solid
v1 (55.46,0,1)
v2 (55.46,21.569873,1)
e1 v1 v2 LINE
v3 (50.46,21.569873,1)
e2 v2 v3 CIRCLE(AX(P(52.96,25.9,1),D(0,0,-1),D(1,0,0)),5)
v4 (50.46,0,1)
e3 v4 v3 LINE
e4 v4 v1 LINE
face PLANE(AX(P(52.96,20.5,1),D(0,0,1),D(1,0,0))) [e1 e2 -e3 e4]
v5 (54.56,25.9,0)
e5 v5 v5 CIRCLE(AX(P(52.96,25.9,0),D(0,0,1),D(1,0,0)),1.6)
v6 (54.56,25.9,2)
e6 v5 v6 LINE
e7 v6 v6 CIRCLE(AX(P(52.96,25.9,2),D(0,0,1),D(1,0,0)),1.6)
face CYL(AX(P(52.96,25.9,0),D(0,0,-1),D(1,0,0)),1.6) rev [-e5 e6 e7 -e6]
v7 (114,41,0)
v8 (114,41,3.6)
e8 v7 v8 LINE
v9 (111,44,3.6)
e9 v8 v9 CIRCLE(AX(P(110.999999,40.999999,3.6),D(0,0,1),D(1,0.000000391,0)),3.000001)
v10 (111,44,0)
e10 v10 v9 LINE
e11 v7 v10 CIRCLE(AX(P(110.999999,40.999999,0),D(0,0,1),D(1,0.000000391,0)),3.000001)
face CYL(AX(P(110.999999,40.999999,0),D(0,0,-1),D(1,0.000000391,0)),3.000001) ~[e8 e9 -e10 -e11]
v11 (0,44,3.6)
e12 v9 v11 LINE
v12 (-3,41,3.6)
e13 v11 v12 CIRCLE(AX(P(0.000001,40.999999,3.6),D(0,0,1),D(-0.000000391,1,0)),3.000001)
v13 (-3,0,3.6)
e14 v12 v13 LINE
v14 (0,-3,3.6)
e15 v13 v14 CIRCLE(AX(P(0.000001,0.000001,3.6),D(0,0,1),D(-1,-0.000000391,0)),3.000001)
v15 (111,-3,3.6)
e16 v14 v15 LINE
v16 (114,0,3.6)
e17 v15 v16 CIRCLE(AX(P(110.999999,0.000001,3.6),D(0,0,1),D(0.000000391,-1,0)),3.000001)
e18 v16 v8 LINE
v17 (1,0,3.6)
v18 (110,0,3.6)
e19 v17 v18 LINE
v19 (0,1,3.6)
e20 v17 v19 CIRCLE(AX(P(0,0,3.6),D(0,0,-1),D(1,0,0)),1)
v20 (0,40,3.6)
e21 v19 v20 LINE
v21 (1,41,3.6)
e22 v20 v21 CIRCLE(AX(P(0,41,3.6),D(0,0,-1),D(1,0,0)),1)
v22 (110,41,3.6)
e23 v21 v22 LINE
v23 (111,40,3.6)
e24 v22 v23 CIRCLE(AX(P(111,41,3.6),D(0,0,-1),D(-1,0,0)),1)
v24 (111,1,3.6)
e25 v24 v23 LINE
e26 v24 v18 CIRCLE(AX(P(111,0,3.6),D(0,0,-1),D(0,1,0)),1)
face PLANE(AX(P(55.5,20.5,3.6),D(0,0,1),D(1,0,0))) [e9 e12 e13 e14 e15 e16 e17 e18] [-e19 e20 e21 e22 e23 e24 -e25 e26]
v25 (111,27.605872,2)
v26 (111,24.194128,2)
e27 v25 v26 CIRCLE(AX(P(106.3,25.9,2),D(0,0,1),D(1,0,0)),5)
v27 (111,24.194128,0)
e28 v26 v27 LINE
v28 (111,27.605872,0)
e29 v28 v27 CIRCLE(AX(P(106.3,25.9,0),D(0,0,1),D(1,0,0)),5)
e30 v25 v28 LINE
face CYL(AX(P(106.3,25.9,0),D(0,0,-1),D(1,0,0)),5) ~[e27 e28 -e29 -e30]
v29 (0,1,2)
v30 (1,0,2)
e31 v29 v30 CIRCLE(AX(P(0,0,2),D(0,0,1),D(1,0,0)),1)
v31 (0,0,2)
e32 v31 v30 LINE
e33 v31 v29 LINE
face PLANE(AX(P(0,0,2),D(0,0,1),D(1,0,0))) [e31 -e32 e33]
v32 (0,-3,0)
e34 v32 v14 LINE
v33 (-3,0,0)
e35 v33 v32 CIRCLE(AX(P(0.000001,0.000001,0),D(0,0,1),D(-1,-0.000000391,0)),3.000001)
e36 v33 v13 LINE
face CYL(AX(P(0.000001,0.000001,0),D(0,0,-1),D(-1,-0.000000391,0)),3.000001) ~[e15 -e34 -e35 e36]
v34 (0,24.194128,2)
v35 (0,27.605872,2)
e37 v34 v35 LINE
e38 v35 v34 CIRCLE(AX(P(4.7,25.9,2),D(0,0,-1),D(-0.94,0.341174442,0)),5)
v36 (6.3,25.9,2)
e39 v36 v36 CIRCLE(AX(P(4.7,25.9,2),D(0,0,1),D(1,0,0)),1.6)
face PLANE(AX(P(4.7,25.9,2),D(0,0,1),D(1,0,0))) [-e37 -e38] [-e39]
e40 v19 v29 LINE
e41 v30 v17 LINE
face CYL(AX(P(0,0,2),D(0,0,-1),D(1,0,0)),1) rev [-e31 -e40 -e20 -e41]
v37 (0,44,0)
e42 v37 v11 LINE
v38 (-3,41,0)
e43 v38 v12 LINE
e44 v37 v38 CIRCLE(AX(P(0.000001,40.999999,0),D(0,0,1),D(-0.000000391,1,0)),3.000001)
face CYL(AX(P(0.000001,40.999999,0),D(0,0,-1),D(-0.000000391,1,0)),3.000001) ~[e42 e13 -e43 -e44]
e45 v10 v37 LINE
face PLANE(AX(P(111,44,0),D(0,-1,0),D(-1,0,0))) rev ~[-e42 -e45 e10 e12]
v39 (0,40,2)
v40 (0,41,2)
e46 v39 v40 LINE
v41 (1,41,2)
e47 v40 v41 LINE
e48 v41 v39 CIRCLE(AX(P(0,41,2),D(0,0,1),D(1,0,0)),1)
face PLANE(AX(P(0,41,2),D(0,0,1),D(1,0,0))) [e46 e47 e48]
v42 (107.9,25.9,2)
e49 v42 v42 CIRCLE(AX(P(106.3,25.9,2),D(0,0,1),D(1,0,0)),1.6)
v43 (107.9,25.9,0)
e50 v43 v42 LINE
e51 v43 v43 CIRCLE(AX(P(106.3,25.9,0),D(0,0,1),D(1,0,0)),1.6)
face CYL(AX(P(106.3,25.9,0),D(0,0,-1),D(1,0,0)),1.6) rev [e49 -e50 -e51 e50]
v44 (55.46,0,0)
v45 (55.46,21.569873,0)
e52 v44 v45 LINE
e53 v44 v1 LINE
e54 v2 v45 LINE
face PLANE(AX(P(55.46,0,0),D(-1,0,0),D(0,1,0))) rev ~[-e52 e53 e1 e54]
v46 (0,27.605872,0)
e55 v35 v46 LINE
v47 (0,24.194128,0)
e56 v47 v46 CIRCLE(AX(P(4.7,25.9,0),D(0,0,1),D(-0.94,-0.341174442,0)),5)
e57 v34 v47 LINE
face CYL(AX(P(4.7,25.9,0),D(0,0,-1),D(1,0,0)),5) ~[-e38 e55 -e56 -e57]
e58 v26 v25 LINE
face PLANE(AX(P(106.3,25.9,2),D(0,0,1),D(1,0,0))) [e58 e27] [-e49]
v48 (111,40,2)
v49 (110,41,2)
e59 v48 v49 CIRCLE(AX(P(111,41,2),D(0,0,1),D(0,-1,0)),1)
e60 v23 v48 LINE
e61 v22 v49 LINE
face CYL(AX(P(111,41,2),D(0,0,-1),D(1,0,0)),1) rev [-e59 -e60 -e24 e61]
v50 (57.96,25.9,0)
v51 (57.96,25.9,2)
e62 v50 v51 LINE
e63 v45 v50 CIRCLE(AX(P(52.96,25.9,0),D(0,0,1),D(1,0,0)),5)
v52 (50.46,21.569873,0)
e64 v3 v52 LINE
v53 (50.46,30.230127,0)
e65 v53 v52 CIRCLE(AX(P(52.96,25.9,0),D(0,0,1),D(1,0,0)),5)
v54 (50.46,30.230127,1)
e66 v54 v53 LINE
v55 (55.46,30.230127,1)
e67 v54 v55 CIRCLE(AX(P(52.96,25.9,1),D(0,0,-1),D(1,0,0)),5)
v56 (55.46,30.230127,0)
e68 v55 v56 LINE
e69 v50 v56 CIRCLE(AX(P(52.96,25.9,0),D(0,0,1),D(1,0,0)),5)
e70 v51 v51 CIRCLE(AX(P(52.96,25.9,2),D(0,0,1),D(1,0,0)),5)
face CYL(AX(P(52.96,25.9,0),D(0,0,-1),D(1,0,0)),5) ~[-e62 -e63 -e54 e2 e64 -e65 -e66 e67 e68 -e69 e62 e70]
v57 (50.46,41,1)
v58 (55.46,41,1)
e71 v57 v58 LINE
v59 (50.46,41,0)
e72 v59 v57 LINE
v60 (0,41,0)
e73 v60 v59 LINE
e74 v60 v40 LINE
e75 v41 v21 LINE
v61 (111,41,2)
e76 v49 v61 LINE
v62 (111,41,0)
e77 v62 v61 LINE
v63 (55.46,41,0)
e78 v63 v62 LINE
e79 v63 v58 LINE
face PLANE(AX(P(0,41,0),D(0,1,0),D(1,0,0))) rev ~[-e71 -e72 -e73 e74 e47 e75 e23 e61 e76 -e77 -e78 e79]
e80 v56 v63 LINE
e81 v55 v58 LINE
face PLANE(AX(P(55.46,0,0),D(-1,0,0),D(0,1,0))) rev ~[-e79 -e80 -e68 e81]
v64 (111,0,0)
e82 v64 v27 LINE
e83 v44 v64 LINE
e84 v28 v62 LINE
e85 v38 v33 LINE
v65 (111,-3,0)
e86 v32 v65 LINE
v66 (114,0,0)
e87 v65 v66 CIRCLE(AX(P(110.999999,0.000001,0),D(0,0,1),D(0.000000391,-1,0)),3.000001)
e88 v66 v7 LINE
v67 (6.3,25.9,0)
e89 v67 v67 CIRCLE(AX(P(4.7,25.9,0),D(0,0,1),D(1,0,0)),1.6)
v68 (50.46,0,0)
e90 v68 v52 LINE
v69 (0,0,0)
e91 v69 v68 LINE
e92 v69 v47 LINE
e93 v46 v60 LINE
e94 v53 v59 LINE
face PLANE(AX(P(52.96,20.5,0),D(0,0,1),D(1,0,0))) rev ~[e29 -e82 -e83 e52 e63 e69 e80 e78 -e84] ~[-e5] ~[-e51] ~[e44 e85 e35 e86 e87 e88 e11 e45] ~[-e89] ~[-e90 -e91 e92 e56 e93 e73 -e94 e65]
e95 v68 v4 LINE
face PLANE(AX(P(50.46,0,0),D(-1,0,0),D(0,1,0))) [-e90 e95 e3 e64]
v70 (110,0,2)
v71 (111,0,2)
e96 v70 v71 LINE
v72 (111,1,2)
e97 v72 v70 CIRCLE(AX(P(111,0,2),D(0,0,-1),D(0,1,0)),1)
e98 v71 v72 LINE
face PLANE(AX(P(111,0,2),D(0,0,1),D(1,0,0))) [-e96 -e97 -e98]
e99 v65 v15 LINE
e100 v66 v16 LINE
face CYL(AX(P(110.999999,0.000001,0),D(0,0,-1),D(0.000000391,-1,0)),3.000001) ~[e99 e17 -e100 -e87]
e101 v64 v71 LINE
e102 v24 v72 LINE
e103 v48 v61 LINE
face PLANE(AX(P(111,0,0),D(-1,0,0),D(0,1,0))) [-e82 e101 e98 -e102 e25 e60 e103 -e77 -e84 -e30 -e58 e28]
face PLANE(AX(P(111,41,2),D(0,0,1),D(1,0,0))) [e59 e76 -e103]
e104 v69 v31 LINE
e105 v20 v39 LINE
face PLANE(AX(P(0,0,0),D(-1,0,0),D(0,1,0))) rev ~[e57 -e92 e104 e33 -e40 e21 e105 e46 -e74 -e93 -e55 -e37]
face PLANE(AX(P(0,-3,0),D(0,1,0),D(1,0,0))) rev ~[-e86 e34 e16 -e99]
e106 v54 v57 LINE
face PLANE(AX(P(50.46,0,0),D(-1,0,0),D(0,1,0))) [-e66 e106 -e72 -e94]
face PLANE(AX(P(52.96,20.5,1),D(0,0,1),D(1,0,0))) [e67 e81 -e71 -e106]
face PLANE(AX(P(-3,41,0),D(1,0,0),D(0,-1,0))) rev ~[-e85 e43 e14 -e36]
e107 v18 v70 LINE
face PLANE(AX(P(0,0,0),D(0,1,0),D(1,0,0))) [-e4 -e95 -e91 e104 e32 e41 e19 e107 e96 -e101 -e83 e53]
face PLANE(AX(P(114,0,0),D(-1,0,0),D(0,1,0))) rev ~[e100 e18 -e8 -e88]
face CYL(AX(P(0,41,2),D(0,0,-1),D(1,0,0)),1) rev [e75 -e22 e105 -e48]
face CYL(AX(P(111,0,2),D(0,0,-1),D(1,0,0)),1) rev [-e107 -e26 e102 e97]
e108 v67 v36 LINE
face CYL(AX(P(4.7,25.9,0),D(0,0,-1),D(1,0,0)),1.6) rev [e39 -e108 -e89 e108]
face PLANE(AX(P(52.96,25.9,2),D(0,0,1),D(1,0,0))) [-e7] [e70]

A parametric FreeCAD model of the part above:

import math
import FreeCAD as App
import Part
import Sketcher
from FreeCAD import Vector

doc = App.newDocument("Part")
body = doc.addObject("PartDesign::Body", "Body")
body.AllowCompound = True

# Sketch on XY plane
sketch1 = body.newObject("Sketcher::SketchObject", "Sketch")
sketch1.AttachmentSupport = (doc.getObject("XY_Plane"), [""])
sketch1.MapMode = "FlatFace"
sketch1.addGeometry([
    Part.LineSegment(Vector(0, -3, 0), Vector(111, -3, 0)),  # 0
    Part.ArcOfCircle(Part.Circle(Vector(111, 0, 0), Vector(0, 0, 1), 3), math.radians(-90), math.radians(0)),  # 1
    Part.LineSegment(Vector(114, 0, 0), Vector(114, 41, 0)),  # 2
    Part.ArcOfCircle(Part.Circle(Vector(111, 41, 0), Vector(0, 0, 1), 3), math.radians(0), math.radians(90)),  # 3
    Part.LineSegment(Vector(111, 44, 0), Vector(0, 44, 0)),  # 4
    Part.ArcOfCircle(Part.Circle(Vector(0, 41, 0), Vector(0, 0, 1), 3), math.radians(90), math.radians(180)),  # 5
    Part.LineSegment(Vector(-3, 41, 0), Vector(-3, 0, 0)),  # 6
    Part.ArcOfCircle(Part.Circle(Vector(0, 0, 0), Vector(0, 0, 1), 3), math.radians(-180), math.radians(-90)),  # 7
    Part.LineSegment(Vector(111, 0, 0), Vector(0, 0, 0)),  # 8
    Part.LineSegment(Vector(0, 0, 0), Vector(0, 41, 0)),  # 9
    Part.LineSegment(Vector(0, 41, 0), Vector(111, 41, 0)),  # 10
    Part.LineSegment(Vector(111, 41, 0), Vector(111, 0, 0)),  # 11
], False)
sketch1.addConstraint([
    Sketcher.Constraint("Tangent", 0, 2, 1, 1),
    Sketcher.Constraint("Tangent", 1, 2, 2, 1),
    Sketcher.Constraint("Tangent", 2, 2, 3, 1),
    Sketcher.Constraint("Tangent", 3, 2, 4, 1),
    Sketcher.Constraint("Tangent", 4, 2, 5, 1),
    Sketcher.Constraint("Tangent", 5, 2, 6, 1),
    Sketcher.Constraint("Tangent", 6, 2, 7, 1),
    Sketcher.Constraint("Tangent", 7, 2, 0, 1),
    Sketcher.Constraint("Coincident", 8, 2, 9, 1),
    Sketcher.Constraint("Coincident", 9, 2, 10, 1),
    Sketcher.Constraint("Coincident", 10, 2, 11, 1),
    Sketcher.Constraint("Coincident", 11, 2, 8, 1),
    Sketcher.Constraint("Horizontal", 0),
    Sketcher.Constraint("Vertical", 2),
    Sketcher.Constraint("Horizontal", 4),
    Sketcher.Constraint("Vertical", 6),
    Sketcher.Constraint("Horizontal", 8),
    Sketcher.Constraint("Vertical", 9),
    Sketcher.Constraint("Horizontal", 10),
    Sketcher.Constraint("Vertical", 11),
    Sketcher.Constraint("Coincident", 7, 3, -1, 1),
    Sketcher.Constraint("Coincident", 8, 2, -1, 1),
    Sketcher.Constraint("Coincident", 9, 2, 5, 3),
    Sketcher.Constraint("Coincident", 10, 2, 3, 3),
    Sketcher.Constraint("Equal", 1, 3),
    Sketcher.Constraint("Radius", 1, 3.000001),
    Sketcher.Constraint("DistanceX", 0, 1, 0, 2, 111.0),
    Sketcher.Constraint("DistanceY", 2, 1, 2, 2, 41.0),
])
pad1 = body.newObject("PartDesign::Pad", "Pad")
pad1.Profile = sketch1
pad1.Length = 3.6

# Sketch on XY plane
sketch2 = body.newObject("Sketcher::SketchObject", "Sketch001")
sketch2.AttachmentSupport = (doc.getObject("XY_Plane"), [""])
sketch2.MapMode = "FlatFace"
sketch2.addGeometry([
    Part.Circle(Vector(4.7, 25.9, 0), Vector(0, 0, 1), 5),  # 0
    Part.Circle(Vector(4.7, 25.9, 0), Vector(0, 0, 1), 1.6),  # 1
    Part.Circle(Vector(106.3, 25.9, 0), Vector(0, 0, 1), 5),  # 2
    Part.Circle(Vector(106.3, 25.9, 0), Vector(0, 0, 1), 1.6),  # 3
    Part.Circle(Vector(53, 25.9, 0), Vector(0, 0, 1), 5),  # 4
    Part.Circle(Vector(53, 25.9, 0), Vector(0, 0, 1), 1.6),  # 5
], False)
sketch2.addConstraint([
    Sketcher.Constraint("Coincident", 1, 3, 0, 3),
    Sketcher.Constraint("Coincident", 3, 3, 2, 3),
    Sketcher.Constraint("Coincident", 5, 3, 4, 3),
    Sketcher.Constraint("Equal", 0, 2),
    Sketcher.Constraint("Equal", 1, 3),
    Sketcher.Constraint("Equal", 2, 4),
    Sketcher.Constraint("Equal", 3, 5),
    Sketcher.Constraint("Horizontal", 1, 3, 2, 3),
    Sketcher.Constraint("Horizontal", 3, 3, 4, 3),
    Sketcher.Constraint("Diameter", 0, 10.0),
    Sketcher.Constraint("Diameter", 1, 3.2),
    Sketcher.Constraint("DistanceX", -1, 1, 0, 3, 4.7),
    Sketcher.Constraint("DistanceY", -1, 1, 0, 3, 25.9),
    Sketcher.Constraint("DistanceX", -1, 1, 2, 3, 106.3),
    Sketcher.Constraint("DistanceX", -1, 1, 4, 3, 52.96),
])
pad2 = body.newObject("PartDesign::Pad", "Pad001")
pad2.Profile = sketch2
pad2.Length = 2

# Sketch on XY plane
sketch3 = body.newObject("Sketcher::SketchObject", "Sketch002")
sketch3.AttachmentSupport = (doc.getObject("XY_Plane"), [""])
sketch3.MapMode = "FlatFace"
sketch3.AttachmentOffset = App.Placement(Vector(0, 0, 2), App.Rotation())
sketch3.addGeometry([
    Part.Circle(Vector(0, 41, 0), Vector(0, 0, 1), 1),
    Part.Circle(Vector(111, 41, 0), Vector(0, 0, 1), 1),
    Part.Circle(Vector(111, 0, 0), Vector(0, 0, 1), 1),
    Part.Circle(Vector(0, 0, 0), Vector(0, 0, 1), 1),
], False)
sketch3.addConstraint([
    Sketcher.Constraint("Coincident", 3, 3, -1, 1),
    Sketcher.Constraint("Equal", 0, 1),
    Sketcher.Constraint("Equal", 1, 2),
    Sketcher.Constraint("Equal", 2, 3),
    Sketcher.Constraint("PointOnObject", 0, 3, -2),
    Sketcher.Constraint("PointOnObject", 2, 3, -1),
    Sketcher.Constraint("Horizontal", 0, 3, 1, 3),
    Sketcher.Constraint("Vertical", 1, 3, 2, 3),
    Sketcher.Constraint("Diameter", 0, 2.0),
    Sketcher.Constraint("DistanceY", -1, 1, 0, 3, 41.0),
    Sketcher.Constraint("DistanceX", -1, 1, 1, 3, 111.0),
])
pocket1 = body.newObject("PartDesign::Pocket", "Pocket")
pocket1.Profile = sketch3
pocket1.Length = 5
pocket1.Reversed = True

# Sketch on XY plane
sketch4 = body.newObject("Sketcher::SketchObject", "Sketch003")
sketch4.AttachmentSupport = (doc.getObject("XY_Plane"), [""])
sketch4.MapMode = "FlatFace"
sketch4.addGeometry([
    Part.LineSegment(Vector(50.5, 41, 0), Vector(50.5, 0, 0)),  # 0
    Part.LineSegment(Vector(50.5, 0, 0), Vector(55.5, 0, 0)),  # 1
    Part.LineSegment(Vector(55.5, 0, 0), Vector(55.5, 41, 0)),  # 2
    Part.LineSegment(Vector(55.5, 41, 0), Vector(50.5, 41, 0)),  # 3
    Part.Circle(Vector(53, 25.9, 0), Vector(0, 0, 1), 1.6),  # 4
], False)
sketch4.addConstraint([
    Sketcher.Constraint("Coincident", 0, 2, 1, 1),
    Sketcher.Constraint("Coincident", 1, 2, 2, 1),
    Sketcher.Constraint("Coincident", 2, 2, 3, 1),
    Sketcher.Constraint("Coincident", 3, 2, 0, 1),
    Sketcher.Constraint("Vertical", 0),
    Sketcher.Constraint("Horizontal", 1),
    Sketcher.Constraint("Vertical", 2),
    Sketcher.Constraint("Horizontal", 3),
    Sketcher.Constraint("PointOnObject", 0, 2, -1),
    Sketcher.Constraint("Diameter", 4, 3.2),
    Sketcher.Constraint("DistanceX", 1, 1, 1, 2, 5.0),
    Sketcher.Constraint("DistanceY", 0, 2, 0, 1, 41.0),
    Sketcher.Constraint("DistanceY", -1, 1, 4, 3, 25.9),
    Sketcher.Constraint("DistanceX", 0, 2, 4, 3, 2.5),
    Sketcher.Constraint("DistanceX", -1, 1, 4, 3, 52.96),
])
pad3 = body.newObject("PartDesign::Pad", "Pad002")
pad3.Profile = sketch4
pad3.Length = 1

doc.recompute()
